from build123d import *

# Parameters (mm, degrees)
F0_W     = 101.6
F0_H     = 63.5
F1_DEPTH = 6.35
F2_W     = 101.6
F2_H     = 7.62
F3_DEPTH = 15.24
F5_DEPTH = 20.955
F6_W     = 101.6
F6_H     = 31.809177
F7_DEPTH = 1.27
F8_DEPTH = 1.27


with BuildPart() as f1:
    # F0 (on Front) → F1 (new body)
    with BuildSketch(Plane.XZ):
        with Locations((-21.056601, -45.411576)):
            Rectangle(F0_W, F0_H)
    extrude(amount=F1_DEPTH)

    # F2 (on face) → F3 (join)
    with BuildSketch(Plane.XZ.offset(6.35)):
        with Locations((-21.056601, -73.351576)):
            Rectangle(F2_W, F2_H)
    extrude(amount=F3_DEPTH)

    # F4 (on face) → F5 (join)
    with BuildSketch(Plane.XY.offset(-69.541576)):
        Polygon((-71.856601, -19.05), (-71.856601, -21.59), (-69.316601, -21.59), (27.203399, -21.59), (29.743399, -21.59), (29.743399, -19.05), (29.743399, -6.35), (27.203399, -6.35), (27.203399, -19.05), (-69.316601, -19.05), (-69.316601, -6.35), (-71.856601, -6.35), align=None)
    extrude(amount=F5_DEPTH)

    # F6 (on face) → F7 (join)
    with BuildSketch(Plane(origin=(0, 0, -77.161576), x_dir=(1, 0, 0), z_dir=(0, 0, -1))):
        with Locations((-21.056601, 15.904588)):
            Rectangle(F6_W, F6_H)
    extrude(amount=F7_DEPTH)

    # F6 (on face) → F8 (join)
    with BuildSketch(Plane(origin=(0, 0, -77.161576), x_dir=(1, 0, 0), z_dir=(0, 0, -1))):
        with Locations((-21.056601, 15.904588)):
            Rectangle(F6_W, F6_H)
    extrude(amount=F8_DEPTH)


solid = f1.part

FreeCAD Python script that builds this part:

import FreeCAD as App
import Part
import Sketcher
Q = App.Units.Quantity

doc = App.newDocument("Part")
body = doc.addObject("PartDesign::Body", "Body")

# Sketch on XZ plane
sketch1 = body.newObject("Sketcher::SketchObject", "Sketch")
sketch1.AttachmentSupport = (doc.getObject("XZ_Plane"), [""])
sketch1.MapMode = "FlatFace"
sketch1.addGeometry([
    Part.LineSegment(App.Vector(-72, -14, 0), App.Vector(-72, -77, 0)),
    Part.LineSegment(App.Vector(-72, -77, 0), App.Vector(30, -77, 0)),
    Part.LineSegment(App.Vector(30, -77, 0), App.Vector(30, -14, 0)),
    Part.LineSegment(App.Vector(30, -14, 0), App.Vector(-72, -14, 0)),
], False)
sketch1.addConstraint([
    Sketcher.Constraint("Coincident", 0, 2, 1, 1),
    Sketcher.Constraint("Coincident", 1, 2, 2, 1),
    Sketcher.Constraint("Coincident", 2, 2, 3, 1),
    Sketcher.Constraint("Coincident", 3, 2, 0, 1),
    Sketcher.Constraint("Vertical", 0),
    Sketcher.Constraint("Horizontal", 1),
    Sketcher.Constraint("Vertical", 2),
    Sketcher.Constraint("Horizontal", 3),
    Sketcher.Constraint("DistanceX", 1, 1, 1, 2, Q("4 in")),
    Sketcher.Constraint("DistanceY", 0, 2, 0, 1, Q("2.5 in")),
    Sketcher.Constraint("DistanceX", 0, 2, -1, 1, Q("2.829 in")),
    Sketcher.Constraint("DistanceY", 0, 2, -1, 1, Q("77.161576 mm")),
])
pad1 = body.newObject("PartDesign::Pad", "Pad")
pad1.Profile = sketch1
pad1.Length = Q("0.25 in")

# Sketch on XZ plane
sketch2 = body.newObject("Sketcher::SketchObject", "Sketch001")
sketch2.AttachmentSupport = (doc.getObject("XZ_Plane"), [""])
sketch2.MapMode = "FlatFace"
sketch2.AttachmentOffset = App.Placement(App.Vector(0, 0, 0.25 * 25.4), App.Rotation())
sketch2.addGeometry([
    Part.LineSegment(App.Vector(-72, -70, 0), App.Vector(-72, -77, 0)),
    Part.LineSegment(App.Vector(-72, -77, 0), App.Vector(30, -77, 0)),
    Part.LineSegment(App.Vector(30, -77, 0), App.Vector(30, -70, 0)),
    Part.LineSegment(App.Vector(30, -70, 0), App.Vector(-72, -70, 0)),
], False)
sketch2.addConstraint([
    Sketcher.Constraint("Coincident", 0, 2, 1, 1),
    Sketcher.Constraint("Coincident", 1, 2, 2, 1),
    Sketcher.Constraint("Coincident", 2, 2, 3, 1),
    Sketcher.Constraint("Coincident", 3, 2, 0, 1),
    Sketcher.Constraint("Vertical", 0),
    Sketcher.Constraint("Horizontal", 1),
    Sketcher.Constraint("Vertical", 2),
    Sketcher.Constraint("Horizontal", 3),
    Sketcher.Constraint("DistanceX", 1, 1, 1, 2, Q("4 in")),
    Sketcher.Constraint("DistanceY", 0, 2, 0, 1, Q("0.3 in")),
    Sketcher.Constraint("DistanceX", 0, 2, -1, 1, Q("2.829 in")),
    Sketcher.Constraint("DistanceY", 0, 2, -1, 1, Q("77.161576 mm")),
])
pad2 = body.newObject("PartDesign::Pad", "Pad001")
pad2.Profile = sketch2
pad2.Length = Q("0.6 in")

# Sketch on XY plane
sketch3 = body.newObject("Sketcher::SketchObject", "Sketch002")
sketch3.AttachmentSupport = (doc.getObject("XY_Plane"), [""])
sketch3.MapMode = "FlatFace"
sketch3.AttachmentOffset = App.Placement(App.Vector(0, 0, -69.541576), App.Rotation())
sketch3.addGeometry([
    Part.LineSegment(App.Vector(-71.9, -21.6, 0), App.Vector(29.7, -21.6, 0)),  # 0
    Part.LineSegment(App.Vector(29.7, -21.6, 0), App.Vector(29.7, -6.3, 0)),  # 1
    Part.LineSegment(App.Vector(29.7, -6.3, 0), App.Vector(27.2, -6.3, 0)),  # 2
    Part.LineSegment(App.Vector(27.2, -6.3, 0), App.Vector(27.2, -19.1, 0)),  # 3
    Part.LineSegment(App.Vector(27.2, -19.1, 0), App.Vector(-69.3, -19.1, 0)),  # 4
    Part.LineSegment(App.Vector(-69.3, -19.1, 0), App.Vector(-69.3, -6.3, 0)),  # 5
    Part.LineSegment(App.Vector(-69.3, -6.3, 0), App.Vector(-71.9, -6.3, 0)),  # 6
    Part.LineSegment(App.Vector(-71.9, -6.3, 0), App.Vector(-71.9, -21.6, 0)),  # 7
], False)
sketch3.addConstraint([
    Sketcher.Constraint("Coincident", 0, 2, 1, 1),
    Sketcher.Constraint("Coincident", 1, 2, 2, 1),
    Sketcher.Constraint("Coincident", 2, 2, 3, 1),
    Sketcher.Constraint("Coincident", 3, 2, 4, 1),
    Sketcher.Constraint("Coincident", 4, 2, 5, 1),
    Sketcher.Constraint("Coincident", 5, 2, 6, 1),
    Sketcher.Constraint("Coincident", 6, 2, 7, 1),
    Sketcher.Constraint("Coincident", 7, 2, 0, 1),
    Sketcher.Constraint("Horizontal", 0),
    Sketcher.Constraint("Vertical", 1),
    Sketcher.Constraint("Horizontal", 2),
    Sketcher.Constraint("Vertical", 3),
    Sketcher.Constraint("Horizontal", 4),
    Sketcher.Constraint("Vertical", 5),
    Sketcher.Constraint("Horizontal", 6),
    Sketcher.Constraint("Vertical", 7),
    Sketcher.Constraint("Horizontal", 2, 2, 5, 2),
    Sketcher.Constraint("Equal", 2, 6),
    Sketcher.Constraint("DistanceX", 0, 1, 0, 2, Q("4 in")),
    Sketcher.Constraint("DistanceX", 2, 2, 2, 1, Q("0.1 in")),
    Sketcher.Constraint("DistanceY", 1, 1, 1, 2, Q("0.6 in")),
    Sketcher.Constraint("DistanceY", 3, 2, 3, 1, Q("0.5 in")),
    Sketcher.Constraint("DistanceY", 0, 2, -1, 1, Q("0.85 in")),
    Sketcher.Constraint("DistanceX", -1, 1, 0, 2, Q("1.171 in")),
])
pad3 = body.newObject("PartDesign::Pad", "Pad002")
pad3.Profile = sketch3
pad3.Length = Q("0.825 in")

# Sketch on XY plane
sketch4 = body.newObject("Sketcher::SketchObject", "Sketch003")
sketch4.AttachmentSupport = (doc.getObject("XY_Plane"), [""])
sketch4.MapMode = "FlatFace"
sketch4.AttachmentOffset = App.Placement(App.Vector(0, 0, -77.161576), App.Rotation())
sketch4.addGeometry([
    Part.LineSegment(App.Vector(-72, -32, 0), App.Vector(-72, 0, 0)),
    Part.LineSegment(App.Vector(-72, 0, 0), App.Vector(30, 0, 0)),
    Part.LineSegment(App.Vector(30, 0, 0), App.Vector(30, -32, 0)),
    Part.LineSegment(App.Vector(30, -32, 0), App.Vector(-72, -32, 0)),
], False)
sketch4.addConstraint([
    Sketcher.Constraint("Coincident", 0, 2, 1, 1),
    Sketcher.Constraint("Coincident", 1, 2, 2, 1),
    Sketcher.Constraint("Coincident", 2, 2, 3, 1),
    Sketcher.Constraint("Coincident", 3, 2, 0, 1),
    Sketcher.Constraint("Vertical", 0),
    Sketcher.Constraint("Horizontal", 1),
    Sketcher.Constraint("Vertical", 2),
    Sketcher.Constraint("Horizontal", 3),
    Sketcher.Constraint("PointOnObject", 0, 2, -1),
    Sketcher.Constraint("DistanceX", 1, 1, 1, 2, Q("4 in")),
    Sketcher.Constraint("DistanceX", 0, 2, -1, 1, Q("2.829 in")),
    Sketcher.Constraint("DistanceY", 0, 1, 0, 2, Q("31.809177 mm")),
])
pad4 = body.newObject("PartDesign::Pad", "Pad003")
pad4.Profile = sketch4
pad4.Length = Q("0.05 in")
pad4.Reversed = True

# Sketch on XY plane
sketch5 = body.newObject("Sketcher::SketchObject", "Sketch004")
sketch5.AttachmentSupport = (doc.getObject("XY_Plane"), [""])
sketch5.MapMode = "FlatFace"
sketch5.AttachmentOffset = App.Placement(App.Vector(0, 0, -77.161576), App.Rotation())
sketch5.addGeometry([
    Part.LineSegment(App.Vector(-72, -32, 0), App.Vector(-72, 0, 0)),
    Part.LineSegment(App.Vector(-72, 0, 0), App.Vector(30, 0, 0)),
    Part.LineSegment(App.Vector(30, 0, 0), App.Vector(30, -32, 0)),
    Part.LineSegment(App.Vector(30, -32, 0), App.Vector(-72, -32, 0)),
], False)
sketch5.addConstraint([
    Sketcher.Constraint("Coincident", 0, 2, 1, 1),
    Sketcher.Constraint("Coincident", 1, 2, 2, 1),
    Sketcher.Constraint("Coincident", 2, 2, 3, 1),
    Sketcher.Constraint("Coincident", 3, 2, 0, 1),
    Sketcher.Constraint("Vertical", 0),
    Sketcher.Constraint("Horizontal", 1),
    Sketcher.Constraint("Vertical", 2),
    Sketcher.Constraint("Horizontal", 3),
    Sketcher.Constraint("PointOnObject", 0, 2, -1),
    Sketcher.Constraint("DistanceX", 1, 1, 1, 2, Q("4 in")),
    Sketcher.Constraint("DistanceX", 0, 2, -1, 1, Q("2.829 in")),
    Sketcher.Constraint("DistanceY", 0, 1, 0, 2, Q("31.809177 mm")),
])
pad5 = body.newObject("PartDesign::Pad", "Pad004")
pad5.Profile = sketch5
pad5.Length = Q("0.05 in")
pad5.Reversed = True

doc.recompute()
